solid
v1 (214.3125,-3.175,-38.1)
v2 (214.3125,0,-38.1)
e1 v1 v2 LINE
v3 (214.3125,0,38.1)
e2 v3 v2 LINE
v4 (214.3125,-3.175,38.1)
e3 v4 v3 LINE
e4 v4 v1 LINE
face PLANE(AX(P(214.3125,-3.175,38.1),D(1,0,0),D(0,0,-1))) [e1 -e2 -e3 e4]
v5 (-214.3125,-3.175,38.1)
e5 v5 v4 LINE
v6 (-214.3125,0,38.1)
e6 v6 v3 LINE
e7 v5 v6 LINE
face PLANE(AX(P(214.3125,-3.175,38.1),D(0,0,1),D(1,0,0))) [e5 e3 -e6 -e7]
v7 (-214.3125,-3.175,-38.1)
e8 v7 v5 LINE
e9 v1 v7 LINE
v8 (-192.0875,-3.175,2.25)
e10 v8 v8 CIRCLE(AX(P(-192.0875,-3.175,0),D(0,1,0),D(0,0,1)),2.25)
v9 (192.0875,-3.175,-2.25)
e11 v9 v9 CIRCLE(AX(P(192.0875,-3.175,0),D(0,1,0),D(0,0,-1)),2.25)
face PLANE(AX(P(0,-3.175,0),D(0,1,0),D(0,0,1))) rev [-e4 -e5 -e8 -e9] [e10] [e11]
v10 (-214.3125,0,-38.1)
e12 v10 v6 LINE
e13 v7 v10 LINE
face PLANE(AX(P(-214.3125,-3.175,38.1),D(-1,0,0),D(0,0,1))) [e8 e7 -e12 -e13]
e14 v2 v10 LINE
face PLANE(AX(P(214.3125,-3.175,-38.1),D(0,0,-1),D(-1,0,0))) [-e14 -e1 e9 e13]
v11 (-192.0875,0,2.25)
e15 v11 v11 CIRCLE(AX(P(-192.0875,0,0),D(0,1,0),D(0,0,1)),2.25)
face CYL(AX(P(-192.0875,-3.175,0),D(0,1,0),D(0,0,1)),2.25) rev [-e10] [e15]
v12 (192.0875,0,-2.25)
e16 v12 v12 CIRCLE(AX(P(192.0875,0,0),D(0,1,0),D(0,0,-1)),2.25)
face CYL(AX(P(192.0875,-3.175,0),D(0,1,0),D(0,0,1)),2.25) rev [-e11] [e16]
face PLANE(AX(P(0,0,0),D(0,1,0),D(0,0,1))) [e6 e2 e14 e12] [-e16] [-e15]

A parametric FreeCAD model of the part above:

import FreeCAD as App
import Part
import Sketcher

V = App.Vector
Q = App.Units.Quantity


def add_polygon(sketch, points):
    """Adds a closed chain of lines whose ends are joined by coincident constraints."""
    first, n = sketch.GeometryCount, len(points)
    for a, b in zip(points, points[1:] + points[:1]):
        sketch.addGeometry(Part.LineSegment(App.Vector(*a, 0), App.Vector(*b, 0)), False)
    for i in range(n):
        sketch.addConstraint(Sketcher.Constraint("Coincident", first + i, 2, first + (i + 1) % n, 1))

doc = App.newDocument("Part")
body = doc.addObject("PartDesign::Body", "Body")

sketch1 = body.newObject("Sketcher::SketchObject", "Sketch")
sketch1.AttachmentSupport = (doc.getObject("XZ_Plane"), [""])
sketch1.MapMode = "FlatFace"
add_polygon(sketch1, [(-214.3125, -38.1), (-214.3125, 38.1), (214.3125, 38.1), (214.3125, -38.1)])
sketch1.addGeometry(Part.Circle(V(-192.0875, 0, 0), V(0, 0, 1), 2.25), False)
sketch1.addGeometry(Part.Circle(V(192.0875, 0, 0), V(0, 0, 1), 2.25), False)
sketch1.addConstraint([
    Sketcher.Constraint("Vertical", 0),
    Sketcher.Constraint("Horizontal", 1),
    Sketcher.Constraint("Vertical", 2),
    Sketcher.Constraint("Horizontal", 3),
    Sketcher.Constraint("Equal", 4, 5),
    Sketcher.Constraint("Symmetric", 4, 3, 5, 3, -1, 1),
    Sketcher.Constraint("Symmetric", 0, 2, 2, 2, -1, 1),
    Sketcher.Constraint("PointOnObject", 4, 3, -1),
    Sketcher.Constraint("DistanceY", 0, 1, 0, 2, Q("3 in")),
    Sketcher.Constraint("DistanceX", 0, 2, 5, 3, Q("16 in")),
    Sketcher.Constraint("Diameter", 4, 4.5),
    Sketcher.Constraint("DistanceX", 1, 1, 1, 2, Q("16.875 in")),
])
pad1 = body.newObject("PartDesign::Pad", "Pad")
pad1.Profile = sketch1
pad1.Length = Q("0.125 in")

doc.recompute()
